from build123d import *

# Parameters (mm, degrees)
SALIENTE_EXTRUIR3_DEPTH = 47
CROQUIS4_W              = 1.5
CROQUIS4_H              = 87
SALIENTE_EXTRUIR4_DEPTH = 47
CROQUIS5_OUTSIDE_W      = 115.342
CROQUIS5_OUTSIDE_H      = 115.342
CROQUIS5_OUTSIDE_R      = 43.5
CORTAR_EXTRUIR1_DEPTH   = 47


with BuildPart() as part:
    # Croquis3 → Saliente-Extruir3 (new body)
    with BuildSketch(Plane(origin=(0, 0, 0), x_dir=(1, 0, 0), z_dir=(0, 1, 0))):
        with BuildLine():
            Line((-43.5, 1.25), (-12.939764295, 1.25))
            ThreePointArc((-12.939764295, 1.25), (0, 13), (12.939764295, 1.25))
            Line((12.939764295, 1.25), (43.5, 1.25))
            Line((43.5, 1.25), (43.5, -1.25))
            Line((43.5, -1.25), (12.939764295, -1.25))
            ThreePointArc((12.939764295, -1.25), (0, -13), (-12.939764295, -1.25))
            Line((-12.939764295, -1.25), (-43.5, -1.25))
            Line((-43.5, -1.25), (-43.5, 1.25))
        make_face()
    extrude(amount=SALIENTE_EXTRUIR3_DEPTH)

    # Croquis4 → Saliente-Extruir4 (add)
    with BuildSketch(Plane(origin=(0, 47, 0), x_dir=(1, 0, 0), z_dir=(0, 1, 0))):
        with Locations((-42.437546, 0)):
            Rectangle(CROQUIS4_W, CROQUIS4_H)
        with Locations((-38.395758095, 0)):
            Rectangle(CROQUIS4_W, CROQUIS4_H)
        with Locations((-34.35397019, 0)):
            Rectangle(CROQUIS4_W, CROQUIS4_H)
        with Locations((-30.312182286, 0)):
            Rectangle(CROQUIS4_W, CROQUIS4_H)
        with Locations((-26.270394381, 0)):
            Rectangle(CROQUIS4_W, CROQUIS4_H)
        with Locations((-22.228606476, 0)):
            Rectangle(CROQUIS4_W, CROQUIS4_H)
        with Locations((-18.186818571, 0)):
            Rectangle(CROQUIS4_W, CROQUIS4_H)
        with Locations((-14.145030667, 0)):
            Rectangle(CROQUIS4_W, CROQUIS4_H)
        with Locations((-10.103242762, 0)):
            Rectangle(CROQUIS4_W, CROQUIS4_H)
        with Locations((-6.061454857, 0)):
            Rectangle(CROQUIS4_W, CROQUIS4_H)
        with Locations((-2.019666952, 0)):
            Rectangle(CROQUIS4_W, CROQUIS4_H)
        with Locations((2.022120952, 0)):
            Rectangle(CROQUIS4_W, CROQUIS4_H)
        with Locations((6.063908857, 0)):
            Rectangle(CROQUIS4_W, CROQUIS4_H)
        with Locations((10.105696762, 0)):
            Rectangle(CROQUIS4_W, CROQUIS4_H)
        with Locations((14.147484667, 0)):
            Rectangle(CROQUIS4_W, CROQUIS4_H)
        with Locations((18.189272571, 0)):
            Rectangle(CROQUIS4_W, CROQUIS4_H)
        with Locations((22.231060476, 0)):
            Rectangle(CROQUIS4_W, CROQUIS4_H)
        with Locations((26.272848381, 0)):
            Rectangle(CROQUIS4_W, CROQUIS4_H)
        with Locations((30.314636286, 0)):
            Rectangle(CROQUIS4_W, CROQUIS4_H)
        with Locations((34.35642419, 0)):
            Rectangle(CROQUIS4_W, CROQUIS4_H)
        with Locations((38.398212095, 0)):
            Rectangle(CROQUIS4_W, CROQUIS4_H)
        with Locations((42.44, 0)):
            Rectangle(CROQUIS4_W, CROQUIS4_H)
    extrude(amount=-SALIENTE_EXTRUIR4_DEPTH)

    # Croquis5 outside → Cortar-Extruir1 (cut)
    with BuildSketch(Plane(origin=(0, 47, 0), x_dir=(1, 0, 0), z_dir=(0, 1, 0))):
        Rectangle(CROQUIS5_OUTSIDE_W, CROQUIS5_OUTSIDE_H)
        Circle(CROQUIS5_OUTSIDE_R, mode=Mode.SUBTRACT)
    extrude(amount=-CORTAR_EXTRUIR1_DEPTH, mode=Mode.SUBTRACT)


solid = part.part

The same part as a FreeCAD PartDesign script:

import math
import FreeCAD as App
import Part
import Sketcher
Q = App.Units.Quantity

doc = App.newDocument("Part")
params = doc.addObject("Spreadsheet::Sheet", "Params")
for row, (alias, value) in enumerate([
    ("sketch1_radius", "13 mm"),
    ("sketch1_height", "2.5 mm"),
    ("pad1_length", "47 mm"),
    ("sketch2_height", "87 mm"),
    ("sketch2_width", "1.5 mm"),
    ("pad2_length", "47 mm"),
    ("sketch3_diameter", "87 mm"),
    ("pocket1_length", "47 mm"),
], start=1):
    params.set(f"A{row}", alias)
    params.set(f"B{row}", "=" + value)
    params.setAlias(f"B{row}", alias)

body = doc.addObject("PartDesign::Body", "Body")

sketch1 = doc.addObject("Sketcher::SketchObject", "Sketch")
body.addObject(sketch1)
sketch1.AttachmentSupport = (doc.XZ_Plane, [""])
sketch1.MapMode = "FlatFace"
sketch1.addGeometry([
    Part.LineSegment(App.Vector(-12.939764, -1.25, 0), App.Vector(-43.5, -1.25, 0)),
    Part.LineSegment(App.Vector(-43.5, -1.25, 0), App.Vector(-43.5, 1.25, 0)),
    Part.LineSegment(App.Vector(-43.5, 1.25, 0), App.Vector(-12.939764, 1.25, 0)),
    Part.ArcOfCircle(Part.Circle(App.Vector(0, 0, 0), App.Vector(0, 0, 1), 13), math.radians(5.517734), math.radians(174.482266)),
    Part.LineSegment(App.Vector(12.939764, 1.25, 0), App.Vector(43.5, 1.25, 0)),
    Part.LineSegment(App.Vector(43.5, 1.25, 0), App.Vector(43.5, -1.25, 0)),
    Part.LineSegment(App.Vector(43.5, -1.25, 0), App.Vector(12.939764, -1.25, 0)),
    Part.ArcOfCircle(Part.Circle(App.Vector(0, 0, 0), App.Vector(0, 0, 1), 13), math.radians(-174.482266), math.radians(-5.517734)),
], False)
sketch1.addConstraint([
    Sketcher.Constraint("Coincident", 0, 2, 1, 1),
    Sketcher.Constraint("Coincident", 1, 2, 2, 1),
    Sketcher.Constraint("Coincident", 2, 2, 3, 2),
    Sketcher.Constraint("Coincident", 3, 1, 4, 1),
    Sketcher.Constraint("Coincident", 4, 2, 5, 1),
    Sketcher.Constraint("Coincident", 5, 2, 6, 1),
    Sketcher.Constraint("Coincident", 6, 2, 7, 2),
    Sketcher.Constraint("Coincident", 7, 1, 0, 1),
    Sketcher.Constraint("Horizontal", 0),
    Sketcher.Constraint("Vertical", 1),
    Sketcher.Constraint("Horizontal", 2),
    Sketcher.Constraint("Horizontal", 4),
    Sketcher.Constraint("Vertical", 5),
    Sketcher.Constraint("Horizontal", 6),
    Sketcher.Constraint("Coincident", 3, 3, -1, 1),
    Sketcher.Constraint("Coincident", 7, 3, -1, 1),
    Sketcher.Constraint("Equal", 3, 7),
    Sketcher.Constraint("Symmetric", 0, 2, 4, 2, -1, 1),
    Sketcher.Constraint("Horizontal", 2, 2, 3, 1),
    Sketcher.Constraint("Horizontal", 0, 2, 5, 2),
    Sketcher.Constraint("Radius", 3, Q("13 mm")),
    Sketcher.Constraint("DistanceY", 1, 1, 1, 2, Q("2.5 mm")),
    Sketcher.Constraint("DistanceX", 1, 2, 4, 2, Q("87 mm")),
])
sketch1.setExpression("Constraints[20]", "Params.sketch1_radius")
sketch1.setExpression("Constraints[21]", "Params.sketch1_height")
pad1 = doc.addObject("PartDesign::Pad", "Pad")
body.addObject(pad1)
pad1.Profile = sketch1
pad1.setExpression("Length", "Params.pad1_length")
pad1.Reversed = True

sketch2 = doc.addObject("Sketcher::SketchObject", "Sketch001")
body.addObject(sketch2)
sketch2.AttachmentSupport = (doc.XZ_Plane, [""])
sketch2.MapMode = "FlatFace"
sketch2.AttachmentOffset = App.Placement(App.Vector(0, 0, -47), App.Rotation())
sketch2.addGeometry([
    Part.LineSegment(App.Vector(-43.187546, -43.5, 0), App.Vector(-43.187546, 43.5, 0)),
    Part.LineSegment(App.Vector(-43.187546, 43.5, 0), App.Vector(-41.687546, 43.5, 0)),
    Part.LineSegment(App.Vector(-41.687546, 43.5, 0), App.Vector(-41.687546, -43.5, 0)),
    Part.LineSegment(App.Vector(-41.687546, -43.5, 0), App.Vector(-43.187546, -43.5, 0)),
    Part.LineSegment(App.Vector(-39.145758, -43.5, 0), App.Vector(-39.145758, 43.5, 0)),
    Part.LineSegment(App.Vector(-39.145758, 43.5, 0), App.Vector(-37.645758, 43.5, 0)),
    Part.LineSegment(App.Vector(-37.645758, 43.5, 0), App.Vector(-37.645758, -43.5, 0)),
    Part.LineSegment(App.Vector(-37.645758, -43.5, 0), App.Vector(-39.145758, -43.5, 0)),
    Part.LineSegment(App.Vector(-35.10397, -43.5, 0), App.Vector(-35.10397, 43.5, 0)),
    Part.LineSegment(App.Vector(-35.10397, 43.5, 0), App.Vector(-33.60397, 43.5, 0)),
    Part.LineSegment(App.Vector(-33.60397, 43.5, 0), App.Vector(-33.60397, -43.5, 0)),
    Part.LineSegment(App.Vector(-33.60397, -43.5, 0), App.Vector(-35.10397, -43.5, 0)),
    Part.LineSegment(App.Vector(-31.062182, -43.5, 0), App.Vector(-31.062182, 43.5, 0)),
    Part.LineSegment(App.Vector(-31.062182, 43.5, 0), App.Vector(-29.562182, 43.5, 0)),
    Part.LineSegment(App.Vector(-29.562182, 43.5, 0), App.Vector(-29.562182, -43.5, 0)),
    Part.LineSegment(App.Vector(-29.562182, -43.5, 0), App.Vector(-31.062182, -43.5, 0)),
    Part.LineSegment(App.Vector(-27.020394, -43.5, 0), App.Vector(-27.020394, 43.5, 0)),
    Part.LineSegment(App.Vector(-27.020394, 43.5, 0), App.Vector(-25.520394, 43.5, 0)),
    Part.LineSegment(App.Vector(-25.520394, 43.5, 0), App.Vector(-25.520394, -43.5, 0)),
    Part.LineSegment(App.Vector(-25.520394, -43.5, 0), App.Vector(-27.020394, -43.5, 0)),
    Part.LineSegment(App.Vector(-22.978606, -43.5, 0), App.Vector(-22.978606, 43.5, 0)),
    Part.LineSegment(App.Vector(-22.978606, 43.5, 0), App.Vector(-21.478606, 43.5, 0)),
    Part.LineSegment(App.Vector(-21.478606, 43.5, 0), App.Vector(-21.478606, -43.5, 0)),
    Part.LineSegment(App.Vector(-21.478606, -43.5, 0), App.Vector(-22.978606, -43.5, 0)),
    Part.LineSegment(App.Vector(-18.936819, -43.5, 0), App.Vector(-18.936819, 43.5, 0)),
    Part.LineSegment(App.Vector(-18.936819, 43.5, 0), App.Vector(-17.436819, 43.5, 0)),
    Part.LineSegment(App.Vector(-17.436819, 43.5, 0), App.Vector(-17.436819, -43.5, 0)),
    Part.LineSegment(App.Vector(-17.436819, -43.5, 0), App.Vector(-18.936819, -43.5, 0)),
    Part.LineSegment(App.Vector(-14.895031, -43.5, 0), App.Vector(-14.895031, 43.5, 0)),
    Part.LineSegment(App.Vector(-14.895031, 43.5, 0), App.Vector(-13.395031, 43.5, 0)),
    Part.LineSegment(App.Vector(-13.395031, 43.5, 0), App.Vector(-13.395031, -43.5, 0)),
    Part.LineSegment(App.Vector(-13.395031, -43.5, 0), App.Vector(-14.895031, -43.5, 0)),
    Part.LineSegment(App.Vector(-10.853243, -43.5, 0), App.Vector(-10.853243, 43.5, 0)),
    Part.LineSegment(App.Vector(-10.853243, 43.5, 0), App.Vector(-9.353243, 43.5, 0)),
    Part.LineSegment(App.Vector(-9.353243, 43.5, 0), App.Vector(-9.353243, -43.5, 0)),
    Part.LineSegment(App.Vector(-9.353243, -43.5, 0), App.Vector(-10.853243, -43.5, 0)),
    Part.LineSegment(App.Vector(-6.811455, -43.5, 0), App.Vector(-6.811455, 43.5, 0)),
    Part.LineSegment(App.Vector(-6.811455, 43.5, 0), App.Vector(-5.311455, 43.5, 0)),
    Part.LineSegment(App.Vector(-5.311455, 43.5, 0), App.Vector(-5.311455, -43.5, 0)),
    Part.LineSegment(App.Vector(-5.311455, -43.5, 0), App.Vector(-6.811455, -43.5, 0)),
    Part.LineSegment(App.Vector(-2.769667, -43.5, 0), App.Vector(-2.769667, 43.5, 0)),
    Part.LineSegment(App.Vector(-2.769667, 43.5, 0), App.Vector(-1.269667, 43.5, 0)),
    Part.LineSegment(App.Vector(-1.269667, 43.5, 0), App.Vector(-1.269667, -43.5, 0)),
    Part.LineSegment(App.Vector(-1.269667, -43.5, 0), App.Vector(-2.769667, -43.5, 0)),
    Part.LineSegment(App.Vector(1.272121, -43.5, 0), App.Vector(1.272121, 43.5, 0)),
    Part.LineSegment(App.Vector(1.272121, 43.5, 0), App.Vector(2.772121, 43.5, 0)),
    Part.LineSegment(App.Vector(2.772121, 43.5, 0), App.Vector(2.772121, -43.5, 0)),
    Part.LineSegment(App.Vector(2.772121, -43.5, 0), App.Vector(1.272121, -43.5, 0)),
    Part.LineSegment(App.Vector(5.313909, -43.5, 0), App.Vector(5.313909, 43.5, 0)),
    Part.LineSegment(App.Vector(5.313909, 43.5, 0), App.Vector(6.813909, 43.5, 0)),
    Part.LineSegment(App.Vector(6.813909, 43.5, 0), App.Vector(6.813909, -43.5, 0)),
    Part.LineSegment(App.Vector(6.813909, -43.5, 0), App.Vector(5.313909, -43.5, 0)),
    Part.LineSegment(App.Vector(9.355697, -43.5, 0), App.Vector(9.355697, 43.5, 0)),
    Part.LineSegment(App.Vector(9.355697, 43.5, 0), App.Vector(10.855697, 43.5, 0)),
    Part.LineSegment(App.Vector(10.855697, 43.5, 0), App.Vector(10.855697, -43.5, 0)),
    Part.LineSegment(App.Vector(10.855697, -43.5, 0), App.Vector(9.355697, -43.5, 0)),
    Part.LineSegment(App.Vector(13.397485, -43.5, 0), App.Vector(13.397485, 43.5, 0)),
    Part.LineSegment(App.Vector(13.397485, 43.5, 0), App.Vector(14.897485, 43.5, 0)),
    Part.LineSegment(App.Vector(14.897485, 43.5, 0), App.Vector(14.897485, -43.5, 0)),
    Part.LineSegment(App.Vector(14.897485, -43.5, 0), App.Vector(13.397485, -43.5, 0)),
    Part.LineSegment(App.Vector(17.439273, -43.5, 0), App.Vector(17.439273, 43.5, 0)),
    Part.LineSegment(App.Vector(17.439273, 43.5, 0), App.Vector(18.939273, 43.5, 0)),
    Part.LineSegment(App.Vector(18.939273, 43.5, 0), App.Vector(18.939273, -43.5, 0)),
    Part.LineSegment(App.Vector(18.939273, -43.5, 0), App.Vector(17.439273, -43.5, 0)),
    Part.LineSegment(App.Vector(21.48106, -43.5, 0), App.Vector(21.48106, 43.5, 0)),
    Part.LineSegment(App.Vector(21.48106, 43.5, 0), App.Vector(22.98106, 43.5, 0)),
    Part.LineSegment(App.Vector(22.98106, 43.5, 0), App.Vector(22.98106, -43.5, 0)),
    Part.LineSegment(App.Vector(22.98106, -43.5, 0), App.Vector(21.48106, -43.5, 0)),
    Part.LineSegment(App.Vector(25.522848, -43.5, 0), App.Vector(25.522848, 43.5, 0)),
    Part.LineSegment(App.Vector(25.522848, 43.5, 0), App.Vector(27.022848, 43.5, 0)),
    Part.LineSegment(App.Vector(27.022848, 43.5, 0), App.Vector(27.022848, -43.5, 0)),
    Part.LineSegment(App.Vector(27.022848, -43.5, 0), App.Vector(25.522848, -43.5, 0)),
    Part.LineSegment(App.Vector(29.564636, -43.5, 0), App.Vector(29.564636, 43.5, 0)),
    Part.LineSegment(App.Vector(29.564636, 43.5, 0), App.Vector(31.064636, 43.5, 0)),
    Part.LineSegment(App.Vector(31.064636, 43.5, 0), App.Vector(31.064636, -43.5, 0)),
    Part.LineSegment(App.Vector(31.064636, -43.5, 0), App.Vector(29.564636, -43.5, 0)),
    Part.LineSegment(App.Vector(33.606424, -43.5, 0), App.Vector(33.606424, 43.5, 0)),
    Part.LineSegment(App.Vector(33.606424, 43.5, 0), App.Vector(35.106424, 43.5, 0)),
    Part.LineSegment(App.Vector(35.106424, 43.5, 0), App.Vector(35.106424, -43.5, 0)),
    Part.LineSegment(App.Vector(35.106424, -43.5, 0), App.Vector(33.606424, -43.5, 0)),
    Part.LineSegment(App.Vector(37.648212, -43.5, 0), App.Vector(37.648212, 43.5, 0)),
    Part.LineSegment(App.Vector(37.648212, 43.5, 0), App.Vector(39.148212, 43.5, 0)),
    Part.LineSegment(App.Vector(39.148212, 43.5, 0), App.Vector(39.148212, -43.5, 0)),
    Part.LineSegment(App.Vector(39.148212, -43.5, 0), App.Vector(37.648212, -43.5, 0)),
    Part.LineSegment(App.Vector(41.69, -43.5, 0), App.Vector(41.69, 43.5, 0)),
    Part.LineSegment(App.Vector(41.69, 43.5, 0), App.Vector(43.19, 43.5, 0)),
    Part.LineSegment(App.Vector(43.19, 43.5, 0), App.Vector(43.19, -43.5, 0)),
    Part.LineSegment(App.Vector(43.19, -43.5, 0), App.Vector(41.69, -43.5, 0)),
], False)
sketch2.addConstraint([
    Sketcher.Constraint("Coincident", 0, 2, 1, 1),
    Sketcher.Constraint("Coincident", 1, 2, 2, 1),
    Sketcher.Constraint("Coincident", 2, 2, 3, 1),
    Sketcher.Constraint("Coincident", 3, 2, 0, 1),
    Sketcher.Constraint("Coincident", 4, 2, 5, 1),
    Sketcher.Constraint("Coincident", 5, 2, 6, 1),
    Sketcher.Constraint("Coincident", 6, 2, 7, 1),
    Sketcher.Constraint("Coincident", 7, 2, 4, 1),
    Sketcher.Constraint("Coincident", 8, 2, 9, 1),
    Sketcher.Constraint("Coincident", 9, 2, 10, 1),
    Sketcher.Constraint("Coincident", 10, 2, 11, 1),
    Sketcher.Constraint("Coincident", 11, 2, 8, 1),
    Sketcher.Constraint("Coincident", 12, 2, 13, 1),
    Sketcher.Constraint("Coincident", 13, 2, 14, 1),
    Sketcher.Constraint("Coincident", 14, 2, 15, 1),
    Sketcher.Constraint("Coincident", 15, 2, 12, 1),
    Sketcher.Constraint("Coincident", 16, 2, 17, 1),
    Sketcher.Constraint("Coincident", 17, 2, 18, 1),
    Sketcher.Constraint("Coincident", 18, 2, 19, 1),
    Sketcher.Constraint("Coincident", 19, 2, 16, 1),
    Sketcher.Constraint("Coincident", 20, 2, 21, 1),
    Sketcher.Constraint("Coincident", 21, 2, 22, 1),
    Sketcher.Constraint("Coincident", 22, 2, 23, 1),
    Sketcher.Constraint("Coincident", 23, 2, 20, 1),
    Sketcher.Constraint("Coincident", 24, 2, 25, 1),
    Sketcher.Constraint("Coincident", 25, 2, 26, 1),
    Sketcher.Constraint("Coincident", 26, 2, 27, 1),
    Sketcher.Constraint("Coincident", 27, 2, 24, 1),
    Sketcher.Constraint("Coincident", 28, 2, 29, 1),
    Sketcher.Constraint("Coincident", 29, 2, 30, 1),
    Sketcher.Constraint("Coincident", 30, 2, 31, 1),
    Sketcher.Constraint("Coincident", 31, 2, 28, 1),
    Sketcher.Constraint("Coincident", 32, 2, 33, 1),
    Sketcher.Constraint("Coincident", 33, 2, 34, 1),
    Sketcher.Constraint("Coincident", 34, 2, 35, 1),
    Sketcher.Constraint("Coincident", 35, 2, 32, 1),
    Sketcher.Constraint("Coincident", 36, 2, 37, 1),
    Sketcher.Constraint("Coincident", 37, 2, 38, 1),
    Sketcher.Constraint("Coincident", 38, 2, 39, 1),
    Sketcher.Constraint("Coincident", 39, 2, 36, 1),
    Sketcher.Constraint("Coincident", 40, 2, 41, 1),
    Sketcher.Constraint("Coincident", 41, 2, 42, 1),
    Sketcher.Constraint("Coincident", 42, 2, 43, 1),
    Sketcher.Constraint("Coincident", 43, 2, 40, 1),
    Sketcher.Constraint("Coincident", 44, 2, 45, 1),
    Sketcher.Constraint("Coincident", 45, 2, 46, 1),
    Sketcher.Constraint("Coincident", 46, 2, 47, 1),
    Sketcher.Constraint("Coincident", 47, 2, 44, 1),
    Sketcher.Constraint("Coincident", 48, 2, 49, 1),
    Sketcher.Constraint("Coincident", 49, 2, 50, 1),
    Sketcher.Constraint("Coincident", 50, 2, 51, 1),
    Sketcher.Constraint("Coincident", 51, 2, 48, 1),
    Sketcher.Constraint("Coincident", 52, 2, 53, 1),
    Sketcher.Constraint("Coincident", 53, 2, 54, 1),
    Sketcher.Constraint("Coincident", 54, 2, 55, 1),
    Sketcher.Constraint("Coincident", 55, 2, 52, 1),
    Sketcher.Constraint("Coincident", 56, 2, 57, 1),
    Sketcher.Constraint("Coincident", 57, 2, 58, 1),
    Sketcher.Constraint("Coincident", 58, 2, 59, 1),
    Sketcher.Constraint("Coincident", 59, 2, 56, 1),
    Sketcher.Constraint("Coincident", 60, 2, 61, 1),
    Sketcher.Constraint("Coincident", 61, 2, 62, 1),
    Sketcher.Constraint("Coincident", 62, 2, 63, 1),
    Sketcher.Constraint("Coincident", 63, 2, 60, 1),
    Sketcher.Constraint("Coincident", 64, 2, 65, 1),
    Sketcher.Constraint("Coincident", 65, 2, 66, 1),
    Sketcher.Constraint("Coincident", 66, 2, 67, 1),
    Sketcher.Constraint("Coincident", 67, 2, 64, 1),
    Sketcher.Constraint("Coincident", 68, 2, 69, 1),
    Sketcher.Constraint("Coincident", 69, 2, 70, 1),
    Sketcher.Constraint("Coincident", 70, 2, 71, 1),
    Sketcher.Constraint("Coincident", 71, 2, 68, 1),
    Sketcher.Constraint("Coincident", 72, 2, 73, 1),
    Sketcher.Constraint("Coincident", 73, 2, 74, 1),
    Sketcher.Constraint("Coincident", 74, 2, 75, 1),
    Sketcher.Constraint("Coincident", 75, 2, 72, 1),
    Sketcher.Constraint("Coincident", 76, 2, 77, 1),
    Sketcher.Constraint("Coincident", 77, 2, 78, 1),
    Sketcher.Constraint("Coincident", 78, 2, 79, 1),
    Sketcher.Constraint("Coincident", 79, 2, 76, 1),
    Sketcher.Constraint("Coincident", 80, 2, 81, 1),
    Sketcher.Constraint("Coincident", 81, 2, 82, 1),
    Sketcher.Constraint("Coincident", 82, 2, 83, 1),
    Sketcher.Constraint("Coincident", 83, 2, 80, 1),
    Sketcher.Constraint("Coincident", 84, 2, 85, 1),
    Sketcher.Constraint("Coincident", 85, 2, 86, 1),
    Sketcher.Constraint("Coincident", 86, 2, 87, 1),
    Sketcher.Constraint("Coincident", 87, 2, 84, 1),
    Sketcher.Constraint("Vertical", 0),
    Sketcher.Constraint("Horizontal", 1),
    Sketcher.Constraint("Vertical", 2),
    Sketcher.Constraint("Horizontal", 3),
    Sketcher.Constraint("Vertical", 4),
    Sketcher.Constraint("Horizontal", 5),
    Sketcher.Constraint("Vertical", 6),
    Sketcher.Constraint("Horizontal", 7),
    Sketcher.Constraint("Vertical", 8),
    Sketcher.Constraint("Horizontal", 9),
    Sketcher.Constraint("Vertical", 10),
    Sketcher.Constraint("Horizontal", 11),
    Sketcher.Constraint("Vertical", 12),
    Sketcher.Constraint("Horizontal", 13),
    Sketcher.Constraint("Vertical", 14),
    Sketcher.Constraint("Horizontal", 15),
    Sketcher.Constraint("Vertical", 16),
    Sketcher.Constraint("Horizontal", 17),
    Sketcher.Constraint("Vertical", 18),
    Sketcher.Constraint("Horizontal", 19),
    Sketcher.Constraint("Vertical", 20),
    Sketcher.Constraint("Horizontal", 21),
    Sketcher.Constraint("Vertical", 22),
    Sketcher.Constraint("Horizontal", 23),
    Sketcher.Constraint("Vertical", 24),
    Sketcher.Constraint("Horizontal", 25),
    Sketcher.Constraint("Vertical", 26),
    Sketcher.Constraint("Horizontal", 27),
    Sketcher.Constraint("Vertical", 28),
    Sketcher.Constraint("Horizontal", 29),
    Sketcher.Constraint("Vertical", 30),
    Sketcher.Constraint("Horizontal", 31),
    Sketcher.Constraint("Vertical", 32),
    Sketcher.Constraint("Horizontal", 33),
    Sketcher.Constraint("Vertical", 34),
    Sketcher.Constraint("Horizontal", 35),
    Sketcher.Constraint("Vertical", 36),
    Sketcher.Constraint("Horizontal", 37),
    Sketcher.Constraint("Vertical", 38),
    Sketcher.Constraint("Horizontal", 39),
    Sketcher.Constraint("Vertical", 40),
    Sketcher.Constraint("Horizontal", 41),
    Sketcher.Constraint("Vertical", 42),
    Sketcher.Constraint("Horizontal", 43),
    Sketcher.Constraint("Vertical", 44),
    Sketcher.Constraint("Horizontal", 45),
    Sketcher.Constraint("Vertical", 46),
    Sketcher.Constraint("Horizontal", 47),
    Sketcher.Constraint("Vertical", 48),
    Sketcher.Constraint("Horizontal", 49),
    Sketcher.Constraint("Vertical", 50),
    Sketcher.Constraint("Horizontal", 51),
    Sketcher.Constraint("Vertical", 52),
    Sketcher.Constraint("Horizontal", 53),
    Sketcher.Constraint("Vertical", 54),
    Sketcher.Constraint("Horizontal", 55),
    Sketcher.Constraint("Vertical", 56),
    Sketcher.Constraint("Horizontal", 57),
    Sketcher.Constraint("Vertical", 58),
    Sketcher.Constraint("Horizontal", 59),
    Sketcher.Constraint("Vertical", 60),
    Sketcher.Constraint("Horizontal", 61),
    Sketcher.Constraint("Vertical", 62),
    Sketcher.Constraint("Horizontal", 63),
    Sketcher.Constraint("Vertical", 64),
    Sketcher.Constraint("Horizontal", 65),
    Sketcher.Constraint("Vertical", 66),
    Sketcher.Constraint("Horizontal", 67),
    Sketcher.Constraint("Vertical", 68),
    Sketcher.Constraint("Horizontal", 69),
    Sketcher.Constraint("Vertical", 70),
    Sketcher.Constraint("Horizontal", 71),
    Sketcher.Constraint("Vertical", 72),
    Sketcher.Constraint("Horizontal", 73),
    Sketcher.Constraint("Vertical", 74),
    Sketcher.Constraint("Horizontal", 75),
    Sketcher.Constraint("Vertical", 76),
    Sketcher.Constraint("Horizontal", 77),
    Sketcher.Constraint("Vertical", 78),
    Sketcher.Constraint("Horizontal", 79),
    Sketcher.Constraint("Vertical", 80),
    Sketcher.Constraint("Horizontal", 81),
    Sketcher.Constraint("Vertical", 82),
    Sketcher.Constraint("Horizontal", 83),
    Sketcher.Constraint("Vertical", 84),
    Sketcher.Constraint("Horizontal", 85),
    Sketcher.Constraint("Vertical", 86),
    Sketcher.Constraint("Horizontal", 87),
    Sketcher.Constraint("Horizontal", 1, 2, 4, 2),
    Sketcher.Constraint("Horizontal", 3, 2, 6, 2),
    Sketcher.Constraint("Horizontal", 5, 2, 8, 2),
    Sketcher.Constraint("Horizontal", 7, 2, 10, 2),
    Sketcher.Constraint("Horizontal", 9, 2, 12, 2),
    Sketcher.Constraint("Horizontal", 11, 2, 14, 2),
    Sketcher.Constraint("Horizontal", 13, 2, 16, 2),
    Sketcher.Constraint("Horizontal", 15, 2, 18, 2),
    Sketcher.Constraint("Horizontal", 17, 2, 20, 2),
    Sketcher.Constraint("Horizontal", 19, 2, 22, 2),
    Sketcher.Constraint("Horizontal", 21, 2, 24, 2),
    Sketcher.Constraint("Horizontal", 23, 2, 26, 2),
    Sketcher.Constraint("Horizontal", 25, 2, 28, 2),
    Sketcher.Constraint("Horizontal", 27, 2, 30, 2),
    Sketcher.Constraint("Horizontal", 29, 2, 32, 2),
    Sketcher.Constraint("Horizontal", 31, 2, 34, 2),
    Sketcher.Constraint("Horizontal", 33, 2, 36, 2),
    Sketcher.Constraint("Horizontal", 35, 2, 38, 2),
    Sketcher.Constraint("Horizontal", 37, 2, 40, 2),
    Sketcher.Constraint("Horizontal", 39, 2, 42, 2),
    Sketcher.Constraint("Horizontal", 41, 2, 44, 2),
    Sketcher.Constraint("Horizontal", 43, 2, 46, 2),
    Sketcher.Constraint("Horizontal", 45, 2, 48, 2),
    Sketcher.Constraint("Horizontal", 47, 2, 50, 2),
    Sketcher.Constraint("Horizontal", 49, 2, 52, 2),
    Sketcher.Constraint("Horizontal", 51, 2, 54, 2),
    Sketcher.Constraint("Horizontal", 53, 2, 56, 2),
    Sketcher.Constraint("Horizontal", 55, 2, 58, 2),
    Sketcher.Constraint("Horizontal", 57, 2, 60, 2),
    Sketcher.Constraint("Horizontal", 59, 2, 62, 2),
    Sketcher.Constraint("Horizontal", 61, 2, 64, 2),
    Sketcher.Constraint("Horizontal", 63, 2, 66, 2),
    Sketcher.Constraint("Horizontal", 65, 2, 68, 2),
    Sketcher.Constraint("Horizontal", 67, 2, 70, 2),
    Sketcher.Constraint("Horizontal", 69, 2, 72, 2),
    Sketcher.Constraint("Horizontal", 71, 2, 74, 2),
    Sketcher.Constraint("Horizontal", 73, 2, 76, 2),
    Sketcher.Constraint("Horizontal", 75, 2, 78, 2),
    Sketcher.Constraint("Horizontal", 77, 2, 80, 2),
    Sketcher.Constraint("Horizontal", 79, 2, 82, 2),
    Sketcher.Constraint("Horizontal", 81, 2, 84, 2),
    Sketcher.Constraint("Horizontal", 83, 2, 86, 2),
    Sketcher.Constraint("Equal", 3, 5),
    Sketcher.Constraint("Equal", 7, 9),
    Sketcher.Constraint("Equal", 11, 13),
    Sketcher.Constraint("Equal", 15, 17),
    Sketcher.Constraint("Equal", 19, 21),
    Sketcher.Constraint("Equal", 23, 25),
    Sketcher.Constraint("Equal", 27, 29),
    Sketcher.Constraint("Equal", 31, 33),
    Sketcher.Constraint("Equal", 35, 37),
    Sketcher.Constraint("Equal", 39, 41),
    Sketcher.Constraint("Equal", 43, 45),
    Sketcher.Constraint("Equal", 47, 49),
    Sketcher.Constraint("Equal", 51, 53),
    Sketcher.Constraint("Equal", 55, 57),
    Sketcher.Constraint("Equal", 59, 61),
    Sketcher.Constraint("Equal", 63, 65),
    Sketcher.Constraint("Equal", 67, 69),
    Sketcher.Constraint("Equal", 71, 73),
    Sketcher.Constraint("Equal", 75, 77),
    Sketcher.Constraint("Equal", 79, 81),
    Sketcher.Constraint("Equal", 83, 85),
    Sketcher.Constraint("DistanceY", 0, 1, 0, 2, Q("87 mm")),
    Sketcher.Constraint("DistanceX", 1, 1, 1, 2, Q("1.5 mm")),
    Sketcher.Constraint("DistanceY", -1, 1, 0, 2, Q("43.5 mm")),
    Sketcher.Constraint("DistanceX", -1, 1, 84, 2, Q("41.69 mm")),
    Sketcher.Constraint("DistanceX", 4, 2, -1, 1, Q("39.145758 mm")),
    Sketcher.Constraint("DistanceX", 8, 2, -1, 1, Q("35.10397 mm")),
    Sketcher.Constraint("DistanceX", 24, 2, -1, 1, Q("18.936819 mm")),
    Sketcher.Constraint("DistanceX", 28, 2, -1, 1, Q("14.895031 mm")),
    Sketcher.Constraint("DistanceX", -1, 1, 44, 2, Q("1.272121 mm")),
    Sketcher.Constraint("DistanceX", -1, 1, 48, 2, Q("5.313909 mm")),
    Sketcher.Constraint("DistanceX", -1, 1, 64, 2, Q("21.48106 mm")),
    Sketcher.Constraint("DistanceX", -1, 1, 68, 2, Q("25.522848 mm")),
    Sketcher.Constraint("DistanceX", 0, 2, -1, 1, Q("43.187546 mm")),
    Sketcher.Constraint("DistanceX", 12, 2, -1, 1, Q("31.062182 mm")),
    Sketcher.Constraint("DistanceX", 16, 2, -1, 1, Q("27.020394 mm")),
    Sketcher.Constraint("DistanceX", 20, 2, -1, 1, Q("22.978606 mm")),
    Sketcher.Constraint("DistanceX", 32, 2, -1, 1, Q("10.853243 mm")),
    Sketcher.Constraint("DistanceX", 36, 2, -1, 1, Q("6.811455 mm")),
    Sketcher.Constraint("DistanceX", 40, 2, -1, 1, Q("2.769667 mm")),
    Sketcher.Constraint("DistanceX", -1, 1, 52, 2, Q("9.355697 mm")),
    Sketcher.Constraint("DistanceX", -1, 1, 56, 2, Q("13.397485 mm")),
    Sketcher.Constraint("DistanceX", -1, 1, 60, 2, Q("17.439273 mm")),
    Sketcher.Constraint("DistanceX", -1, 1, 72, 2, Q("29.564636 mm")),
    Sketcher.Constraint("DistanceX", -1, 1, 76, 2, Q("33.606424 mm")),
    Sketcher.Constraint("DistanceX", -1, 1, 80, 2, Q("37.648212 mm")),
])
sketch2.setExpression("Constraints[239]", "Params.sketch2_height")
sketch2.setExpression("Constraints[240]", "Params.sketch2_width")
pad2 = doc.addObject("PartDesign::Pad", "Pad001")
body.addObject(pad2)
pad2.Profile = sketch2
pad2.setExpression("Length", "Params.pad2_length")

sketch3 = doc.addObject("Sketcher::SketchObject", "Sketch002")
body.addObject(sketch3)
sketch3.AttachmentSupport = (doc.XZ_Plane, [""])
sketch3.MapMode = "FlatFace"
sketch3.AttachmentOffset = App.Placement(App.Vector(0, 0, -47), App.Rotation())
sketch3.addGeometry([
    Part.LineSegment(App.Vector(-57.671, -57.671, 0), App.Vector(-57.671, 57.671, 0)),
    Part.LineSegment(App.Vector(-57.671, 57.671, 0), App.Vector(57.671, 57.671, 0)),
    Part.LineSegment(App.Vector(57.671, 57.671, 0), App.Vector(57.671, -57.671, 0)),
    Part.LineSegment(App.Vector(57.671, -57.671, 0), App.Vector(-57.671, -57.671, 0)),
    Part.Circle(App.Vector(0, 0, 0), App.Vector(0, 0, 1), 43.5),
], False)
sketch3.addConstraint([
    Sketcher.Constraint("Coincident", 0, 2, 1, 1),
    Sketcher.Constraint("Coincident", 1, 2, 2, 1),
    Sketcher.Constraint("Coincident", 2, 2, 3, 1),
    Sketcher.Constraint("Coincident", 3, 2, 0, 1),
    Sketcher.Constraint("Vertical", 0),
    Sketcher.Constraint("Horizontal", 1),
    Sketcher.Constraint("Vertical", 2),
    Sketcher.Constraint("Horizontal", 3),
    Sketcher.Constraint("Coincident", 4, 3, -1, 1),
    Sketcher.Constraint("Symmetric", 0, 2, 2, 2, -1, 1),
    Sketcher.Constraint("Equal", 3, 0),
    Sketcher.Constraint("Diameter", 4, Q("87 mm")),
    Sketcher.Constraint("DistanceX", 1, 1, 1, 2, Q("115.342 mm")),
])
sketch3.setExpression("Constraints[11]", "Params.sketch3_diameter")
pocket1 = doc.addObject("PartDesign::Pocket", "Pocket")
body.addObject(pocket1)
pocket1.Profile = sketch3
pocket1.setExpression("Length", "Params.pocket1_length")
pocket1.Reversed = True

doc.recompute()
